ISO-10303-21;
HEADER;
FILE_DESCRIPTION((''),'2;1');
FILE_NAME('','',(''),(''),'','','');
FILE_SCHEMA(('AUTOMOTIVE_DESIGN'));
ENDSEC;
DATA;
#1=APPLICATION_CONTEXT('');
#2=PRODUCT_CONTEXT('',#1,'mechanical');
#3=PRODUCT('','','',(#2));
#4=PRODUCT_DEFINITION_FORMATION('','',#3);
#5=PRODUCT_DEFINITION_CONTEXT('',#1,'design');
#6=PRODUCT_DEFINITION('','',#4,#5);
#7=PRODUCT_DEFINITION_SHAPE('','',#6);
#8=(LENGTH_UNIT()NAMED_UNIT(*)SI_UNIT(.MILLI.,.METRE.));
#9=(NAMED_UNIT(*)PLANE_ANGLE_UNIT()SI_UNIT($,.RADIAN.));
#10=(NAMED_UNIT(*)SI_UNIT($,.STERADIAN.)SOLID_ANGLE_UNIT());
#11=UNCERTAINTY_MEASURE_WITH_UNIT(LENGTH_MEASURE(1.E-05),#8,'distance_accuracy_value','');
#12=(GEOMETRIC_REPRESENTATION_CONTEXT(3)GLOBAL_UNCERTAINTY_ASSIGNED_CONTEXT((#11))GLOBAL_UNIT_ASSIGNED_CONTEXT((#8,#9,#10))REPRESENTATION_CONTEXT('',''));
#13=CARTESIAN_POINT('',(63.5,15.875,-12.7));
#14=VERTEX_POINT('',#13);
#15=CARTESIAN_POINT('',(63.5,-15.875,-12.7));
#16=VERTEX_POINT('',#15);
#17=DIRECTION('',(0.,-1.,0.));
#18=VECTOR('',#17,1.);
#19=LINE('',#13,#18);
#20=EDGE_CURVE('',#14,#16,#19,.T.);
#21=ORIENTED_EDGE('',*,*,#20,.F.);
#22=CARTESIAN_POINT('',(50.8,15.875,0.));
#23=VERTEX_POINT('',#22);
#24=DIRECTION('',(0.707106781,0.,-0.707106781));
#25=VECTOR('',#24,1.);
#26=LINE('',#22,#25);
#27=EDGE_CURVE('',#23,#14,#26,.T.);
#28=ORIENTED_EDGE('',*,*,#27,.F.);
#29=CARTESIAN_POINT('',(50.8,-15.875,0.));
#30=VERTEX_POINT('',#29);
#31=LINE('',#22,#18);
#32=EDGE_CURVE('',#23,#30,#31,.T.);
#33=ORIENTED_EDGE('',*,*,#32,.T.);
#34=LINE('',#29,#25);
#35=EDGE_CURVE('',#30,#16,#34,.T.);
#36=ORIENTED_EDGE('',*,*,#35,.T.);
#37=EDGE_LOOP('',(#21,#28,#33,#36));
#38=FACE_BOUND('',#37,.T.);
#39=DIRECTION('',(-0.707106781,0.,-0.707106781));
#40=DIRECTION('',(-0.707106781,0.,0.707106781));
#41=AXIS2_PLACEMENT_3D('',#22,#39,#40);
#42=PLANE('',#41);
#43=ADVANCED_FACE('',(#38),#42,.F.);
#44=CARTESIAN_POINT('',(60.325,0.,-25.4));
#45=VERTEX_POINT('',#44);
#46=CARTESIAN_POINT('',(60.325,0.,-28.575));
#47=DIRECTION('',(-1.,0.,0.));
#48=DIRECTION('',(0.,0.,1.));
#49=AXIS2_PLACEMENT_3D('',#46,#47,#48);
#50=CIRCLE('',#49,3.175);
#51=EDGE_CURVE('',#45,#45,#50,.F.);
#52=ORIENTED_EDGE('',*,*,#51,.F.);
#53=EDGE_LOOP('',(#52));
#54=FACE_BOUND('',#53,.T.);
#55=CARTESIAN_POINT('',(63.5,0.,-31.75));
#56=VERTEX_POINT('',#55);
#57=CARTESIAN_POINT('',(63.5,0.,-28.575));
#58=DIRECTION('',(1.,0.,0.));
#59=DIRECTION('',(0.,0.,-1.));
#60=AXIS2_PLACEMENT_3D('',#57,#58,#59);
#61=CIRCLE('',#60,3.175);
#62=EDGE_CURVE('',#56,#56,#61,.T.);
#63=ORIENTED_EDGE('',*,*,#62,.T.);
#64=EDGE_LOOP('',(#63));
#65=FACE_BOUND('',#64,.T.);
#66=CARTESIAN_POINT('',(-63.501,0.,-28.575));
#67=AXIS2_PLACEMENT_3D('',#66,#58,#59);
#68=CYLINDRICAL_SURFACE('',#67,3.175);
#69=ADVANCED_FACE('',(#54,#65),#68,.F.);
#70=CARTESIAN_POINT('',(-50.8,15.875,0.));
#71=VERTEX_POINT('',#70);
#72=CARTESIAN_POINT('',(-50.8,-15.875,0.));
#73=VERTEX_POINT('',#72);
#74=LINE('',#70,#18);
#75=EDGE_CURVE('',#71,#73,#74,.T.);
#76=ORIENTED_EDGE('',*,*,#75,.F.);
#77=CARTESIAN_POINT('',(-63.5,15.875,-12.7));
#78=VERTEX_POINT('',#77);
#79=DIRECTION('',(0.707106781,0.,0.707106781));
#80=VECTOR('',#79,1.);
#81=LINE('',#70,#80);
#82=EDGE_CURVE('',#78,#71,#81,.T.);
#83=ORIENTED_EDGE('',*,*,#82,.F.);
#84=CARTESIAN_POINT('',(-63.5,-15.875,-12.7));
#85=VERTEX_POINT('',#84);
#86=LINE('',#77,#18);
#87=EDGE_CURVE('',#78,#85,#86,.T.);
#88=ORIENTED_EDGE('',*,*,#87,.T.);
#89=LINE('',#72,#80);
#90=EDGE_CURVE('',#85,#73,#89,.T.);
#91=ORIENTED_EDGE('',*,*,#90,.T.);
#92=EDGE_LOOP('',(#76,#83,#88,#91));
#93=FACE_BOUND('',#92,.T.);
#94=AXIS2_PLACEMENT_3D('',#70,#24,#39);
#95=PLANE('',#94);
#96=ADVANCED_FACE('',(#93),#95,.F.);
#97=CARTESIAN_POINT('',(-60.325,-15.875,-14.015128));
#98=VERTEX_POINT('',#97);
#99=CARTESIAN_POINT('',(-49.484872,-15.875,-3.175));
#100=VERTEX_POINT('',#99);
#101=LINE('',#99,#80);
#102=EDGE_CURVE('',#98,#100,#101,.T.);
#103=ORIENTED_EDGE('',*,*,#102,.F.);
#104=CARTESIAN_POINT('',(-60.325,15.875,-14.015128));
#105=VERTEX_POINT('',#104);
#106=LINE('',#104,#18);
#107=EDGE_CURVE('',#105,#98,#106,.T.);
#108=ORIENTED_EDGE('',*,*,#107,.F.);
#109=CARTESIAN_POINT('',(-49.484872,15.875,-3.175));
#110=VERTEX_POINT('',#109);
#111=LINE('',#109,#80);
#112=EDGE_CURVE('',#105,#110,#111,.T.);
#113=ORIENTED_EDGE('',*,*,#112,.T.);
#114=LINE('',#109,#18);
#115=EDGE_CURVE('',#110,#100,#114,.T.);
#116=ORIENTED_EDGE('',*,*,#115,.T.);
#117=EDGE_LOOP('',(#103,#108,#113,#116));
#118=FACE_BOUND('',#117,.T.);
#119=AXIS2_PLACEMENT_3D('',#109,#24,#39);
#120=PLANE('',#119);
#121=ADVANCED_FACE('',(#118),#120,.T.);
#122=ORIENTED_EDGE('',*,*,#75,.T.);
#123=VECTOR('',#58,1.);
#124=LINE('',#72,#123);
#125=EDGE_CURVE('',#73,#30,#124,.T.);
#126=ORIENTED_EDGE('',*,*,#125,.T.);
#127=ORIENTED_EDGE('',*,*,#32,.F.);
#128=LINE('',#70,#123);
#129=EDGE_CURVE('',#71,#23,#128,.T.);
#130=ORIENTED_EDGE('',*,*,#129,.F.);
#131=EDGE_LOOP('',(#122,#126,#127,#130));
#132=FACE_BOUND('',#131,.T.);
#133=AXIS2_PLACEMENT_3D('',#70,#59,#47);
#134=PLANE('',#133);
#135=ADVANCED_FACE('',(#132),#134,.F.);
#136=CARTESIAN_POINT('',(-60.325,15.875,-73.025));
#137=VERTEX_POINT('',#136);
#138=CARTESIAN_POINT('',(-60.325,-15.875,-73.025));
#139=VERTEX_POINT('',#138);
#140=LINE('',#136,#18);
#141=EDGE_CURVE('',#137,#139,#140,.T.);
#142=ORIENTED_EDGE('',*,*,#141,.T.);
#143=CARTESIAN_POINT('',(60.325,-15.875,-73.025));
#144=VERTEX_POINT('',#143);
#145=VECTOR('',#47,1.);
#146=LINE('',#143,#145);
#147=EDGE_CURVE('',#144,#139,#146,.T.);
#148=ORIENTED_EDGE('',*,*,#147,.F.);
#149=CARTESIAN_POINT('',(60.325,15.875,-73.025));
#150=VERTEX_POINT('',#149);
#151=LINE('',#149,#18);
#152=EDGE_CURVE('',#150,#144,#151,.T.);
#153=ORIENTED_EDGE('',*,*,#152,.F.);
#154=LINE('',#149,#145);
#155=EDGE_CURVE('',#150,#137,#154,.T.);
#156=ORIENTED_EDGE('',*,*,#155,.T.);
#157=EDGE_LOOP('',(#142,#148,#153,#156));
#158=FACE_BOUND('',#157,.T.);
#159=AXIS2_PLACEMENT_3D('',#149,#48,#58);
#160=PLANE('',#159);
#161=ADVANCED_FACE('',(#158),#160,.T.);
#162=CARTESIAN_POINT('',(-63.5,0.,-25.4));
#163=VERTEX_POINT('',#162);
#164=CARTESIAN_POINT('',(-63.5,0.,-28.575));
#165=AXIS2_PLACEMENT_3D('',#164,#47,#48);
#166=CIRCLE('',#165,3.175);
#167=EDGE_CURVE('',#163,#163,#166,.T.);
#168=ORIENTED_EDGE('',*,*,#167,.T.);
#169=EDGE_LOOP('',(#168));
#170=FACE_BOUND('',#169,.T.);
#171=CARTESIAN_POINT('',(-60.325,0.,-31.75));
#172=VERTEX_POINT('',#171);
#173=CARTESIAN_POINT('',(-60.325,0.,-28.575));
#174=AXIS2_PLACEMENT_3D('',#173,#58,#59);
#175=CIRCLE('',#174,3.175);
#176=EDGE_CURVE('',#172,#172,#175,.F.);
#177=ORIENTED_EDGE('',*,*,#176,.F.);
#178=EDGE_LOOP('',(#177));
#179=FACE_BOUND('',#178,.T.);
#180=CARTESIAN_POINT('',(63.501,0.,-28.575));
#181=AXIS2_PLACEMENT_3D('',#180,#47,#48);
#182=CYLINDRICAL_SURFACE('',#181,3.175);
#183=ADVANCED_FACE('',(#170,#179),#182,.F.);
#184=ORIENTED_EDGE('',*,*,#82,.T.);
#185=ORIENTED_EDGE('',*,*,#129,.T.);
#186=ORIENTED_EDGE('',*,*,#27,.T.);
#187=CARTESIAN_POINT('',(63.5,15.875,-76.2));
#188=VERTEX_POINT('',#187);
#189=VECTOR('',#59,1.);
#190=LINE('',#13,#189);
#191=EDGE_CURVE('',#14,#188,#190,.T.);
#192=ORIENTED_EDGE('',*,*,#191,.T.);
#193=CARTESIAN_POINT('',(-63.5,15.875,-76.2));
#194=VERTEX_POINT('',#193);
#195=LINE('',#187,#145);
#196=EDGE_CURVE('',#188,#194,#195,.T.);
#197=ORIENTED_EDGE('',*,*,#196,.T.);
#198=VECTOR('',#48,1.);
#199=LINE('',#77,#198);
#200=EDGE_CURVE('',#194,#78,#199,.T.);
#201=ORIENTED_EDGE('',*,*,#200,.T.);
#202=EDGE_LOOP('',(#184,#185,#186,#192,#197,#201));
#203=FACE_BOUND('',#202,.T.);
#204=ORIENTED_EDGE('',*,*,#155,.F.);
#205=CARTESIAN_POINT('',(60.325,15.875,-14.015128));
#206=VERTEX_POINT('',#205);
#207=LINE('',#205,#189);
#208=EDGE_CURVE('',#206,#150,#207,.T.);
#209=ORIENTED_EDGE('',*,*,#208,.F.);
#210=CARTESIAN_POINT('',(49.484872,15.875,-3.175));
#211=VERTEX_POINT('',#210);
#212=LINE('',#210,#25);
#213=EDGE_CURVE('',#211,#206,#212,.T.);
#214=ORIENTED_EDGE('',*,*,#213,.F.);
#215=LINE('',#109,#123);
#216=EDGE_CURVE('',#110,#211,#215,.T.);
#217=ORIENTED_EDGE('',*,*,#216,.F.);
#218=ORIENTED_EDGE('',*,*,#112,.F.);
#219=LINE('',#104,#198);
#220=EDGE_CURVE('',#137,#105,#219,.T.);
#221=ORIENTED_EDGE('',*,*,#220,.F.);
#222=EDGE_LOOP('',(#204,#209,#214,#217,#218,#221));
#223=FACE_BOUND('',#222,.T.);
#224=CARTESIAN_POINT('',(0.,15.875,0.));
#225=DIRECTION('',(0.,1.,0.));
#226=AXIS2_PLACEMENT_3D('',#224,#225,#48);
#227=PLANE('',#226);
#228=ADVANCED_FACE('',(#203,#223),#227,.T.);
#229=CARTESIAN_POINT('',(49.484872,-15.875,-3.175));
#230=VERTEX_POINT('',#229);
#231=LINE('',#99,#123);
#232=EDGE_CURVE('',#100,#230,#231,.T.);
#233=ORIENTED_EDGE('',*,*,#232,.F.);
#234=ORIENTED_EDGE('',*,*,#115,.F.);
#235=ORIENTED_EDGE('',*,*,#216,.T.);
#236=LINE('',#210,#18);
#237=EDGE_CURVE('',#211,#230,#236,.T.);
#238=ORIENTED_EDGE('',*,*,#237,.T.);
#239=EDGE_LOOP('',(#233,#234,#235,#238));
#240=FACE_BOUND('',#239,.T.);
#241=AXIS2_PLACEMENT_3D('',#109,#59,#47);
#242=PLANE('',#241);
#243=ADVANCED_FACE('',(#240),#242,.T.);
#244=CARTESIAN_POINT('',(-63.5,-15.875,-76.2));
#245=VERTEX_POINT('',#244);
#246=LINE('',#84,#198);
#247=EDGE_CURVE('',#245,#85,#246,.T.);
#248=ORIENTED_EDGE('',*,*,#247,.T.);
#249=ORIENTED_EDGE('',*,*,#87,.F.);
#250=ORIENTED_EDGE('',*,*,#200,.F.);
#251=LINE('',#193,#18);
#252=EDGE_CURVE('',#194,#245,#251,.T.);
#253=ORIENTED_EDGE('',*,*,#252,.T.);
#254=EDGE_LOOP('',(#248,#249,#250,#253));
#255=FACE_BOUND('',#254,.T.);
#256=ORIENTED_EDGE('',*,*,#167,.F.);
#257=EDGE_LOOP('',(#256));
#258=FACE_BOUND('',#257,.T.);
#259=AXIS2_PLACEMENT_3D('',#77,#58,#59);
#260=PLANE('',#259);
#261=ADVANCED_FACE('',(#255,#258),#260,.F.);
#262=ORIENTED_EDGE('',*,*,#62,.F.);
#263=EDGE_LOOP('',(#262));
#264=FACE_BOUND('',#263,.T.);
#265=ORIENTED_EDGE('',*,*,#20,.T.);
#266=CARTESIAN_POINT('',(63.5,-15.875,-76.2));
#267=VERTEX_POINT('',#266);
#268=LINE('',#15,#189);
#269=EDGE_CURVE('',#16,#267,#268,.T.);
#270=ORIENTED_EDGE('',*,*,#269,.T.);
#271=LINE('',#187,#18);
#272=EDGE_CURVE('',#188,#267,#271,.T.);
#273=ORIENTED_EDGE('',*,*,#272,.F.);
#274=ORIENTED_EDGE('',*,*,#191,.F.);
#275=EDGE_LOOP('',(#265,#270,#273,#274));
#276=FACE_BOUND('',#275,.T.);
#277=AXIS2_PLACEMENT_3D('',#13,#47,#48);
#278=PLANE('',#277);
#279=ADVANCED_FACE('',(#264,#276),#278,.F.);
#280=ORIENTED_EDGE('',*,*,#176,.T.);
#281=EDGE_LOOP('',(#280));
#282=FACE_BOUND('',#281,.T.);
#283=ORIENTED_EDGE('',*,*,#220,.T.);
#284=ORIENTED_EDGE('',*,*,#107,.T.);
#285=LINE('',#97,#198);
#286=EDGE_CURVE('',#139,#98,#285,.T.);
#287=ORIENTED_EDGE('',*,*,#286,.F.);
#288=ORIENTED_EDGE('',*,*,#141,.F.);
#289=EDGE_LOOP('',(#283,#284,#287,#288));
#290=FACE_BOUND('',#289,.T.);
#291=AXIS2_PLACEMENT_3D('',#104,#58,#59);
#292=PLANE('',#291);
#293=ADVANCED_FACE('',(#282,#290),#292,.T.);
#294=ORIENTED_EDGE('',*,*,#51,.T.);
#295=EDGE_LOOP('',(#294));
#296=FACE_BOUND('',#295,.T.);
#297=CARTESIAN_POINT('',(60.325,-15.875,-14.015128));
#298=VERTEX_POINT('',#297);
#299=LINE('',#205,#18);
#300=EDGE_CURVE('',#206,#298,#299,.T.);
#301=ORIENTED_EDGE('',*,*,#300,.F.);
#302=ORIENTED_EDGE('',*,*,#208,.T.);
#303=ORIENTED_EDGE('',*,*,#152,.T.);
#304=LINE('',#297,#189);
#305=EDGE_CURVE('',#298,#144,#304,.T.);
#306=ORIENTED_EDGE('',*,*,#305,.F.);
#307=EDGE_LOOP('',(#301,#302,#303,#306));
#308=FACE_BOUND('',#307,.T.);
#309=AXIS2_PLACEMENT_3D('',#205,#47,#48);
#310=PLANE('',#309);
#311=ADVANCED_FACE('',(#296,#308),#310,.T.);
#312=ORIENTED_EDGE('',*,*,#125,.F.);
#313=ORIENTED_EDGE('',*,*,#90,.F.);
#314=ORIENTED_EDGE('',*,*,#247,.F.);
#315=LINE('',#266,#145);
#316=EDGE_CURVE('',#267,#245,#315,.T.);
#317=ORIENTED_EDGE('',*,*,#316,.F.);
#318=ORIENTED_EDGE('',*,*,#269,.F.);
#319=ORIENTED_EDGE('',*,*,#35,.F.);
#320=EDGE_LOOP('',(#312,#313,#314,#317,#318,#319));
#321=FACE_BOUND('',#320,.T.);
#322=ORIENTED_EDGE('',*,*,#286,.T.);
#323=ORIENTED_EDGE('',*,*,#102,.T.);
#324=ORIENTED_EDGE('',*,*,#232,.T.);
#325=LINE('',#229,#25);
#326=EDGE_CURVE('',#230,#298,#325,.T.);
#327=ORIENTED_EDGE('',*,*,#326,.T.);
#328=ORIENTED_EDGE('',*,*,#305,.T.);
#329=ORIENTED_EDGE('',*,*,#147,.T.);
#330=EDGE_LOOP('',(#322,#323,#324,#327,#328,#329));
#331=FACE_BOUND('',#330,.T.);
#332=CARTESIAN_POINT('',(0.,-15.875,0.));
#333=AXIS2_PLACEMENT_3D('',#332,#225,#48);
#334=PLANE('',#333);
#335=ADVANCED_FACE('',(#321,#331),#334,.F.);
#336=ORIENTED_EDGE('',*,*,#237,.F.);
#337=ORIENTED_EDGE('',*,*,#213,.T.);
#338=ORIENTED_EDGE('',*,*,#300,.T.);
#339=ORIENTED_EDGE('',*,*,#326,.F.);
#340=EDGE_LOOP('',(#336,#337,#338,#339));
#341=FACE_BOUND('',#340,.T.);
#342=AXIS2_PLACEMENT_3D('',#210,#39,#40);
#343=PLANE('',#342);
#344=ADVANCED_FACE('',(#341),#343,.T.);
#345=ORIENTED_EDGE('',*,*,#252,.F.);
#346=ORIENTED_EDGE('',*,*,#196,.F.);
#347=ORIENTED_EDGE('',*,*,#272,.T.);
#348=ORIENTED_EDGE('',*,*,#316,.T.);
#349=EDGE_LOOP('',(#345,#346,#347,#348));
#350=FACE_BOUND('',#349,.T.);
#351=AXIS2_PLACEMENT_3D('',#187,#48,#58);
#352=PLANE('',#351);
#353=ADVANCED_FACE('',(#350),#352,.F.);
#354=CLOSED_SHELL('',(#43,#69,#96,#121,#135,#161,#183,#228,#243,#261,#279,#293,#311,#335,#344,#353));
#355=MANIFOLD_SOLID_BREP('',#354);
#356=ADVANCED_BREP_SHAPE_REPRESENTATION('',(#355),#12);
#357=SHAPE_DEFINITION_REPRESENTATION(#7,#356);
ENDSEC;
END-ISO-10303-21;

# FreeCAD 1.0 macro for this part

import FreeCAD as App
import Part
import Sketcher
from FreeCAD import Vector
Q = App.Units.Quantity

doc = App.newDocument("Part")
params = doc.addObject("Spreadsheet::Sheet", "Params")
for row, (alias, value) in enumerate([
    ("sketch1_width", "4 in"),
    ("sketch1_width2", "5 in"),
    ("sketch1_height", "2.5 in"),
    ("sketch1_width3", "4.75 in"),
    ("pad1_length", "1.25 in"),
    ("sketch2_diameter", "0.25 in"),
    ("sketch3_diameter", "0.25 in"),
], start=1):
    params.set(f"A{row}", alias)
    params.set(f"B{row}", "=" + value)
    params.setAlias(f"B{row}", alias)

body = doc.addObject("PartDesign::Body", "Body")

# Sketch on XZ plane
sketch1 = doc.addObject("Sketcher::SketchObject", "Sketch")
body.addObject(sketch1)
sketch1.AttachmentSupport = (doc.XZ_Plane, [""])
sketch1.MapMode = "FlatFace"
sketch1.addGeometry([
    Part.LineSegment(Vector(-50.8, 0, 0), Vector(50.8, 0, 0)),  # 0
    Part.LineSegment(Vector(50.8, 0, 0), Vector(63.5, -12.7, 0)),  # 1
    Part.LineSegment(Vector(63.5, -12.7, 0), Vector(63.5, -76.2, 0)),  # 2
    Part.LineSegment(Vector(63.5, -76.2, 0), Vector(-63.5, -76.2, 0)),  # 3
    Part.LineSegment(Vector(-63.5, -76.2, 0), Vector(-63.5, -12.7, 0)),  # 4
    Part.LineSegment(Vector(-63.5, -12.7, 0), Vector(-50.8, 0, 0)),  # 5
    Part.LineSegment(Vector(-60.325, -73.025, 0), Vector(60.325, -73.025, 0)),  # 6
    Part.LineSegment(Vector(60.325, -73.025, 0), Vector(60.325, -14.015128, 0)),  # 7
    Part.LineSegment(Vector(60.325, -14.015128, 0), Vector(49.484872, -3.175, 0)),  # 8
    Part.LineSegment(Vector(49.484872, -3.175, 0), Vector(-49.484872, -3.175, 0)),  # 9
    Part.LineSegment(Vector(-49.484872, -3.175, 0), Vector(-60.325, -14.015128, 0)),  # 10
    Part.LineSegment(Vector(-60.325, -14.015128, 0), Vector(-60.325, -73.025, 0)),  # 11
], False)
sketch1.addConstraint([
    Sketcher.Constraint("Coincident", 0, 2, 1, 1),
    Sketcher.Constraint("Coincident", 1, 2, 2, 1),
    Sketcher.Constraint("Coincident", 2, 2, 3, 1),
    Sketcher.Constraint("Coincident", 3, 2, 4, 1),
    Sketcher.Constraint("Coincident", 4, 2, 5, 1),
    Sketcher.Constraint("Coincident", 5, 2, 0, 1),
    Sketcher.Constraint("Coincident", 6, 2, 7, 1),
    Sketcher.Constraint("Coincident", 7, 2, 8, 1),
    Sketcher.Constraint("Coincident", 8, 2, 9, 1),
    Sketcher.Constraint("Coincident", 9, 2, 10, 1),
    Sketcher.Constraint("Coincident", 10, 2, 11, 1),
    Sketcher.Constraint("Coincident", 11, 2, 6, 1),
    Sketcher.Constraint("Horizontal", 0),
    Sketcher.Constraint("Vertical", 2),
    Sketcher.Constraint("Horizontal", 3),
    Sketcher.Constraint("Vertical", 4),
    Sketcher.Constraint("Horizontal", 6),
    Sketcher.Constraint("Vertical", 7),
    Sketcher.Constraint("Horizontal", 9),
    Sketcher.Constraint("Vertical", 11),
    Sketcher.Constraint("Symmetric", 0, 2, 5, 2, -1, 1),
    Sketcher.Constraint("Symmetric", 1, 2, 4, 2, -2),
    Sketcher.Constraint("Symmetric", 7, 2, 10, 2, -2),
    Sketcher.Constraint("Perpendicular", 1, 5),
    Sketcher.Constraint("Perpendicular", 5, 8),
    Sketcher.Constraint("Perpendicular", 8, 10),
    Sketcher.Constraint("DistanceX", 0, 1, 0, 2, Q("4 in")),
    Sketcher.Constraint("DistanceX", 3, 2, 3, 1, Q("5 in")),
    Sketcher.Constraint("DistanceY", 2, 2, 2, 1, Q("2.5 in")),
    Sketcher.Constraint("DistanceX", 6, 1, 6, 2, Q("4.75 in")),
    Sketcher.Constraint("DistanceY", 6, 2, 8, 2, Q("2.75 in")),
    Sketcher.Constraint("DistanceY", 6, 2, -1, 1, Q("2.875 in")),
    Sketcher.Constraint("DistanceY", 7, 1, 7, 2, Q("59.009872 mm")),
])
sketch1.setExpression("Constraints[26]", "Params.sketch1_width")
sketch1.setExpression("Constraints[27]", "Params.sketch1_width2")
sketch1.setExpression("Constraints[28]", "Params.sketch1_height")
sketch1.setExpression("Constraints[29]", "Params.sketch1_width3")
pad1 = doc.addObject("PartDesign::Pad", "Pad")
body.addObject(pad1)
pad1.Profile = sketch1
pad1.setExpression("Length", "Params.pad1_length")
pad1.Midplane = True

# Sketch on YZ plane
sketch2 = doc.addObject("Sketcher::SketchObject", "Sketch001")
body.addObject(sketch2)
sketch2.AttachmentSupport = (doc.YZ_Plane, [""])
sketch2.MapMode = "FlatFace"
sketch2.AttachmentOffset = App.Placement(Vector(0, 0, -2.5 * 25.4), App.Rotation())
sketch2.addGeometry(Part.Circle(Vector(0, -28.575, 0), Vector(0, 0, 1), 3.175), False)
sketch2.addConstraint([
    Sketcher.Constraint("PointOnObject", 0, 3, -2),
    Sketcher.Constraint("Diameter", 0, Q("0.25 in")),
    Sketcher.Constraint("DistanceY", 0, 3, -1, 1, Q("1.125 in")),
])
sketch2.setExpression("Constraints[1]", "Params.sketch2_diameter")
pocket1 = doc.addObject("PartDesign::Pocket", "Pocket")
body.addObject(pocket1)
pocket1.Profile = sketch2
pocket1.Type = "UpToFirst"
pocket1.Reversed = True

# Sketch on YZ plane
sketch3 = doc.addObject("Sketcher::SketchObject", "Sketch002")
body.addObject(sketch3)
sketch3.AttachmentSupport = (doc.YZ_Plane, [""])
sketch3.MapMode = "FlatFace"
sketch3.AttachmentOffset = App.Placement(Vector(0, 0, 2.5 * 25.4), App.Rotation())
sketch3.addGeometry(Part.Circle(Vector(0, -28.575, 0), Vector(0, 0, 1), 3.175), False)
sketch3.addConstraint([
    Sketcher.Constraint("PointOnObject", 0, 3, -2),
    Sketcher.Constraint("Diameter", 0, Q("0.25 in")),
    Sketcher.Constraint("DistanceY", 0, 3, -1, 1, Q("1.125 in")),
])
sketch3.setExpression("Constraints[1]", "Params.sketch3_diameter")
pocket2 = doc.addObject("PartDesign::Pocket", "Pocket001")
body.addObject(pocket2)
pocket2.Profile = sketch3
pocket2.Type = "UpToFirst"

doc.recompute()
